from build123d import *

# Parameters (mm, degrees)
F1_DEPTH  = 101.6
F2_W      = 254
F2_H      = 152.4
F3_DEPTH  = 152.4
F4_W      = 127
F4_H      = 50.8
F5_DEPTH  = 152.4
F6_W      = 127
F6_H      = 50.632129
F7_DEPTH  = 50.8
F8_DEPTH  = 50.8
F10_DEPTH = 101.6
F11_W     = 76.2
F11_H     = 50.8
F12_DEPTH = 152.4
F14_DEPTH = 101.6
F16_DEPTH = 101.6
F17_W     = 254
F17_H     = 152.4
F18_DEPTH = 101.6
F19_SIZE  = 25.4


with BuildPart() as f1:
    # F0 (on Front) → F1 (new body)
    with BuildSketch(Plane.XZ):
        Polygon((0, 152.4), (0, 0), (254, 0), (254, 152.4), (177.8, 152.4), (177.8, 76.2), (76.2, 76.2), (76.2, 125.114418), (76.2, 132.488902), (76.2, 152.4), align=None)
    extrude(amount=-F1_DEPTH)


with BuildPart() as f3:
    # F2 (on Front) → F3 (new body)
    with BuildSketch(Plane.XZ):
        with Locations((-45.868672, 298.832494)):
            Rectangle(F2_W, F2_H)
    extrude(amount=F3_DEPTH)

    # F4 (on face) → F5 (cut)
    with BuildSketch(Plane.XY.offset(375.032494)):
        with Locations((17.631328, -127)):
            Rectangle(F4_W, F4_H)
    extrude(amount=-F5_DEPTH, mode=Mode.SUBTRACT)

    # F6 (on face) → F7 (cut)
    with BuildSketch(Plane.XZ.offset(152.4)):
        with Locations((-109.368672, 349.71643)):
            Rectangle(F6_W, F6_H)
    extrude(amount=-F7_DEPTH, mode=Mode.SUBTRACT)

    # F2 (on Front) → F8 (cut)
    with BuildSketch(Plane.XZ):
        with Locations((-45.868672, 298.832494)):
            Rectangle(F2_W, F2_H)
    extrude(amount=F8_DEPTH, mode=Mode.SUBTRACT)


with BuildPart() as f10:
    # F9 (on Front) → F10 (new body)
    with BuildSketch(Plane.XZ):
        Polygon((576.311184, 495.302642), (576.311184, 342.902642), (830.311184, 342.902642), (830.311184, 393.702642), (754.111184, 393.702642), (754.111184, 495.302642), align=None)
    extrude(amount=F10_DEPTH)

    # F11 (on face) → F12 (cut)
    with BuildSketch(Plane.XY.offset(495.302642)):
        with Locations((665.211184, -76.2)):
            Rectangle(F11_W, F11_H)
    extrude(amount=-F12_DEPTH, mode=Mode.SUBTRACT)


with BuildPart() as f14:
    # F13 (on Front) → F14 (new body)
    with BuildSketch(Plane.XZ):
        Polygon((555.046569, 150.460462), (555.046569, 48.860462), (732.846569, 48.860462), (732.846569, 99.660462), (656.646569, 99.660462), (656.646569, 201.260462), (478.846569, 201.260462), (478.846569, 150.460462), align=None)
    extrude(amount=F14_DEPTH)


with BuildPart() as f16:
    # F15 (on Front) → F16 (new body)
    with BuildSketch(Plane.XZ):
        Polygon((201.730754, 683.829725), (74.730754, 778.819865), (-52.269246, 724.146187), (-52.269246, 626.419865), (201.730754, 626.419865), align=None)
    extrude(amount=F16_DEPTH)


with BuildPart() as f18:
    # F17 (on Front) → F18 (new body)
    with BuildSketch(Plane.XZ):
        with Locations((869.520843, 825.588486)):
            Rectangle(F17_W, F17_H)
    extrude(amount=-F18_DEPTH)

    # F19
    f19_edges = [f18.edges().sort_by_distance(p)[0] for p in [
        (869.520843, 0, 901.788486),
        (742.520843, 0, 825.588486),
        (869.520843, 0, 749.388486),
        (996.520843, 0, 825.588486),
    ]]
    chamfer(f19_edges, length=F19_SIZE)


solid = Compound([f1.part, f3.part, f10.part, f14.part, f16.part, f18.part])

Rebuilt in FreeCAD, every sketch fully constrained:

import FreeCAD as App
import Part
import Sketcher
from FreeCAD import Vector
Q = App.Units.Quantity


def edges_at(feature, points):
    """Names of the edges that pass closest to the given points."""
    edges = feature.Shape.Edges
    near = lambda p: min(range(len(edges)), key=lambda i: edges[i].distToShape(Part.Vertex(*p))[0])
    return sorted({f"Edge{near(p) + 1}" for p in points})


def add_polygon(sketch, points):
    """Adds a closed chain of lines whose ends are joined by coincident constraints."""
    first, n = sketch.GeometryCount, len(points)
    for a, b in zip(points, points[1:] + points[:1]):
        sketch.addGeometry(Part.LineSegment(App.Vector(*a, 0), App.Vector(*b, 0)), False)
    for i in range(n):
        sketch.addConstraint(Sketcher.Constraint("Coincident", first + i, 2, first + (i + 1) % n, 1))

doc = App.newDocument("Part")
params = doc.addObject("Spreadsheet::Sheet", "Params")
for row, (alias, value) in enumerate([
    ("sketch1_width", "10 in"),
    ("sketch1_width2", "3 in"),
    ("sketch1_height", "6 in"),
    ("pad1_length", "4 in"),
    ("sketch2_width", "10 in"),
    ("sketch2_height", "6 in"),
    ("pad2_length", "6 in"),
    ("sketch3_width", "5 in"),
    ("sketch3_height", "2 in"),
    ("pocket1_length", "6 in"),
    ("sketch4_width", "5 in"),
    ("pocket2_length", "2 in"),
    ("sketch5_width", "10 in"),
    ("sketch5_height", "6 in"),
    ("pocket3_length", "2 in"),
    ("sketch6_width", "10 in"),
    ("sketch6_width2", "3 in"),
    ("sketch6_height", "6 in"),
    ("sketch6_height2", "2 in"),
    ("pad3_length", "4 in"),
    ("sketch7_width", "3 in"),
    ("sketch7_height", "2 in"),
    ("pocket4_length", "6 in"),
    ("sketch8_width", "7 in"),
    ("sketch8_width2", "3 in"),
    ("sketch8_height", "4 in"),
    ("sketch8_height2", "2 in"),
    ("pad4_length", "4 in"),
    ("sketch9_width", "10 in"),
    ("pad5_length", "4 in"),
    ("sketch10_width", "10 in"),
    ("sketch10_height", "6 in"),
    ("pad6_length", "4 in"),
    ("chamfer_size", "1 in"),
], start=1):
    params.set(f"A{row}", alias)
    params.set(f"B{row}", "=" + value)
    params.setAlias(f"B{row}", alias)

body = doc.addObject("PartDesign::Body", "Body")

sketch1 = body.newObject("Sketcher::SketchObject", "Sketch")
sketch1.AttachmentSupport = (doc.getObject("XZ_Plane"), [""])
sketch1.MapMode = "FlatFace"
add_polygon(sketch1, [(0, 152.4), (0, 0), (254, 0), (254, 152.4), (177.8, 152.4), (177.8, 76.2), (76.2, 76.2), (76.2, 152.4)])
sketch1.addConstraint(Sketcher.Constraint("Vertical", 0))
sketch1.addConstraint(Sketcher.Constraint("Horizontal", 1))
sketch1.addConstraint(Sketcher.Constraint("Vertical", 2))
sketch1.addConstraint(Sketcher.Constraint("Horizontal", 3))
sketch1.addConstraint(Sketcher.Constraint("Vertical", 4))
sketch1.addConstraint(Sketcher.Constraint("Horizontal", 5))
sketch1.addConstraint(Sketcher.Constraint("Vertical", 6))
sketch1.addConstraint(Sketcher.Constraint("Horizontal", 7))
sketch1.addConstraint(Sketcher.Constraint("Coincident", 0, 2, -1, 1))
sketch1.addConstraint(Sketcher.Constraint("Horizontal", 3, 2, 6, 2))
sketch1.addConstraint(Sketcher.Constraint("Equal", 3, 7))
sketch1.addConstraint(Sketcher.Constraint("Equal", 7, 4))
sketch1.addConstraint(Sketcher.Constraint("DistanceX", 1, 1, 1, 2, Q("10 in")))
sketch1.addConstraint(Sketcher.Constraint("DistanceX", 3, 2, 3, 1, Q("3 in")))
sketch1.addConstraint(Sketcher.Constraint("DistanceY", 0, 2, 0, 1, Q("6 in")))
sketch1.setExpression("Constraints[20]", "Params.sketch1_width")
sketch1.setExpression("Constraints[21]", "Params.sketch1_width2")
sketch1.setExpression("Constraints[22]", "Params.sketch1_height")
pad1 = body.newObject("PartDesign::Pad", "Pad")
pad1.Profile = sketch1
pad1.setExpression("Length", "Params.pad1_length")
pad1.Reversed = True
body2 = doc.addObject("PartDesign::Body", "Body001")

sketch2 = body2.newObject("Sketcher::SketchObject", "Sketch001")
sketch2.AttachmentSupport = (doc.getObject("XZ_Plane001"), [""])
sketch2.MapMode = "FlatFace"
add_polygon(sketch2, [(-172.868672, 375.032494), (-172.868672, 222.632494), (81.131328, 222.632494), (81.131328, 375.032494)])
sketch2.addConstraint(Sketcher.Constraint("Vertical", 0))
sketch2.addConstraint(Sketcher.Constraint("Horizontal", 1))
sketch2.addConstraint(Sketcher.Constraint("Vertical", 2))
sketch2.addConstraint(Sketcher.Constraint("Horizontal", 3))
sketch2.addConstraint(Sketcher.Constraint("DistanceX", 1, 1, 1, 2, Q("10 in")))
sketch2.addConstraint(Sketcher.Constraint("DistanceY", 0, 2, 0, 1, Q("6 in")))
sketch2.addConstraint(Sketcher.Constraint("DistanceX", 0, 2, -1, 1, 172.868672))
sketch2.addConstraint(Sketcher.Constraint("DistanceY", -1, 1, 0, 2, 222.632494))
sketch2.setExpression("Constraints[8]", "Params.sketch2_width")
sketch2.setExpression("Constraints[9]", "Params.sketch2_height")
pad2 = body2.newObject("PartDesign::Pad", "Pad001")
pad2.Profile = sketch2
pad2.setExpression("Length", "Params.pad2_length")

sketch3 = body2.newObject("Sketcher::SketchObject", "Sketch002")
sketch3.AttachmentSupport = (doc.getObject("XY_Plane001"), [""])
sketch3.MapMode = "FlatFace"
sketch3.AttachmentOffset = App.Placement(Vector(0, 0, 375.032494), App.Rotation())
add_polygon(sketch3, [(-45.868672, -101.6), (-45.868672, -152.4), (81.131328, -152.4), (81.131328, -101.6)])
sketch3.addConstraint(Sketcher.Constraint("Vertical", 0))
sketch3.addConstraint(Sketcher.Constraint("Horizontal", 1))
sketch3.addConstraint(Sketcher.Constraint("Vertical", 2))
sketch3.addConstraint(Sketcher.Constraint("Horizontal", 3))
sketch3.addConstraint(Sketcher.Constraint("DistanceX", 1, 1, 1, 2, Q("5 in")))
sketch3.addConstraint(Sketcher.Constraint("DistanceY", 0, 2, 0, 1, Q("2 in")))
sketch3.addConstraint(Sketcher.Constraint("DistanceY", 0, 2, -1, 1, Q("6 in")))
sketch3.addConstraint(Sketcher.Constraint("DistanceX", 0, 2, -1, 1, 45.868672))
sketch3.setExpression("Constraints[8]", "Params.sketch3_width")
sketch3.setExpression("Constraints[9]", "Params.sketch3_height")
pocket1 = body2.newObject("PartDesign::Pocket", "Pocket")
pocket1.Profile = sketch3
pocket1.setExpression("Length", "Params.pocket1_length")

sketch4 = body2.newObject("Sketcher::SketchObject", "Sketch003")
sketch4.AttachmentSupport = (doc.getObject("XZ_Plane001"), [""])
sketch4.MapMode = "FlatFace"
sketch4.AttachmentOffset = App.Placement(Vector(0, 0, 6 * 25.4), App.Rotation())
add_polygon(sketch4, [(-172.868672, 375.032494), (-172.868672, 324.400366), (-45.868672, 324.400366), (-45.868672, 375.032494)])
sketch4.addConstraint(Sketcher.Constraint("Vertical", 0))
sketch4.addConstraint(Sketcher.Constraint("Horizontal", 1))
sketch4.addConstraint(Sketcher.Constraint("Vertical", 2))
sketch4.addConstraint(Sketcher.Constraint("Horizontal", 3))
sketch4.addConstraint(Sketcher.Constraint("DistanceX", 1, 1, 1, 2, Q("5 in")))
sketch4.addConstraint(Sketcher.Constraint("DistanceY", 0, 2, 0, 1, 50.632129))
sketch4.addConstraint(Sketcher.Constraint("DistanceX", 0, 2, -1, 1, 172.868672))
sketch4.addConstraint(Sketcher.Constraint("DistanceY", -1, 1, 0, 2, 324.400366))
sketch4.setExpression("Constraints[8]", "Params.sketch4_width")
pocket2 = body2.newObject("PartDesign::Pocket", "Pocket001")
pocket2.Profile = sketch4
pocket2.setExpression("Length", "Params.pocket2_length")

sketch5 = body2.newObject("Sketcher::SketchObject", "Sketch004")
sketch5.AttachmentSupport = (doc.getObject("XZ_Plane001"), [""])
sketch5.MapMode = "FlatFace"
add_polygon(sketch5, [(-172.868672, 375.032494), (-172.868672, 222.632494), (81.131328, 222.632494), (81.131328, 375.032494)])
sketch5.addConstraint(Sketcher.Constraint("Vertical", 0))
sketch5.addConstraint(Sketcher.Constraint("Horizontal", 1))
sketch5.addConstraint(Sketcher.Constraint("Vertical", 2))
sketch5.addConstraint(Sketcher.Constraint("Horizontal", 3))
sketch5.addConstraint(Sketcher.Constraint("DistanceX", 1, 1, 1, 2, Q("10 in")))
sketch5.addConstraint(Sketcher.Constraint("DistanceY", 0, 2, 0, 1, Q("6 in")))
sketch5.addConstraint(Sketcher.Constraint("DistanceX", 0, 2, -1, 1, 172.868672))
sketch5.addConstraint(Sketcher.Constraint("DistanceY", -1, 1, 0, 2, 222.632494))
sketch5.setExpression("Constraints[8]", "Params.sketch5_width")
sketch5.setExpression("Constraints[9]", "Params.sketch5_height")
pocket3 = body2.newObject("PartDesign::Pocket", "Pocket002")
pocket3.Profile = sketch5
pocket3.setExpression("Length", "Params.pocket3_length")
pocket3.Reversed = True
body3 = doc.addObject("PartDesign::Body", "Body002")

sketch6 = body3.newObject("Sketcher::SketchObject", "Sketch005")
sketch6.AttachmentSupport = (doc.getObject("XZ_Plane002"), [""])
sketch6.MapMode = "FlatFace"
add_polygon(sketch6, [(576.311184, 495.302642), (576.311184, 342.902642), (830.311184, 342.902642), (830.311184, 393.702642), (754.111184, 393.702642), (754.111184, 495.302642)])
sketch6.addConstraint(Sketcher.Constraint("Vertical", 0))
sketch6.addConstraint(Sketcher.Constraint("Horizontal", 1))
sketch6.addConstraint(Sketcher.Constraint("Vertical", 2))
sketch6.addConstraint(Sketcher.Constraint("Horizontal", 3))
sketch6.addConstraint(Sketcher.Constraint("Vertical", 4))
sketch6.addConstraint(Sketcher.Constraint("Horizontal", 5))
sketch6.addConstraint(Sketcher.Constraint("DistanceX", 1, 1, 1, 2, Q("10 in")))
sketch6.addConstraint(Sketcher.Constraint("DistanceX", 3, 2, 3, 1, Q("3 in")))
sketch6.addConstraint(Sketcher.Constraint("DistanceY", 0, 2, 0, 1, Q("6 in")))
sketch6.addConstraint(Sketcher.Constraint("DistanceY", 2, 1, 2, 2, Q("2 in")))
sketch6.addConstraint(Sketcher.Constraint("DistanceY", -1, 1, 0, 2, 342.902642))
sketch6.addConstraint(Sketcher.Constraint("DistanceX", -1, 1, 0, 2, 576.311184))
sketch6.setExpression("Constraints[12]", "Params.sketch6_width")
sketch6.setExpression("Constraints[13]", "Params.sketch6_width2")
sketch6.setExpression("Constraints[14]", "Params.sketch6_height")
sketch6.setExpression("Constraints[15]", "Params.sketch6_height2")
pad3 = body3.newObject("PartDesign::Pad", "Pad002")
pad3.Profile = sketch6
pad3.setExpression("Length", "Params.pad3_length")

sketch7 = body3.newObject("Sketcher::SketchObject", "Sketch006")
sketch7.AttachmentSupport = (doc.getObject("XY_Plane002"), [""])
sketch7.MapMode = "FlatFace"
sketch7.AttachmentOffset = App.Placement(Vector(0, 0, 495.302642), App.Rotation())
add_polygon(sketch7, [(627.111184, -50.8), (627.111184, -101.6), (703.311184, -101.6), (703.311184, -50.8)])
sketch7.addConstraint(Sketcher.Constraint("Vertical", 0))
sketch7.addConstraint(Sketcher.Constraint("Horizontal", 1))
sketch7.addConstraint(Sketcher.Constraint("Vertical", 2))
sketch7.addConstraint(Sketcher.Constraint("Horizontal", 3))
sketch7.addConstraint(Sketcher.Constraint("DistanceX", 1, 1, 1, 2, Q("3 in")))
sketch7.addConstraint(Sketcher.Constraint("DistanceY", 0, 2, 0, 1, Q("2 in")))
sketch7.addConstraint(Sketcher.Constraint("DistanceY", 0, 2, -1, 1, Q("4 in")))
sketch7.addConstraint(Sketcher.Constraint("DistanceX", -1, 1, 0, 2, 627.111184))
sketch7.setExpression("Constraints[8]", "Params.sketch7_width")
sketch7.setExpression("Constraints[9]", "Params.sketch7_height")
pocket4 = body3.newObject("PartDesign::Pocket", "Pocket003")
pocket4.Profile = sketch7
pocket4.setExpression("Length", "Params.pocket4_length")
body4 = doc.addObject("PartDesign::Body", "Body003")

sketch8 = body4.newObject("Sketcher::SketchObject", "Sketch007")
sketch8.AttachmentSupport = (doc.getObject("XZ_Plane003"), [""])
sketch8.MapMode = "FlatFace"
add_polygon(sketch8, [(555.046569, 150.460462), (555.046569, 48.860462), (732.846569, 48.860462), (732.846569, 99.660462), (656.646569, 99.660462), (656.646569, 201.260462), (478.846569, 201.260462), (478.846569, 150.460462)])
sketch8.addConstraint(Sketcher.Constraint("Vertical", 0))
sketch8.addConstraint(Sketcher.Constraint("Horizontal", 1))
sketch8.addConstraint(Sketcher.Constraint("Vertical", 2))
sketch8.addConstraint(Sketcher.Constraint("Horizontal", 3))
sketch8.addConstraint(Sketcher.Constraint("Vertical", 4))
sketch8.addConstraint(Sketcher.Constraint("Horizontal", 5))
sketch8.addConstraint(Sketcher.Constraint("Vertical", 6))
sketch8.addConstraint(Sketcher.Constraint("Horizontal", 7))
sketch8.addConstraint(Sketcher.Constraint("Equal", 1, 5))
sketch8.addConstraint(Sketcher.Constraint("Equal", 0, 4))
sketch8.addConstraint(Sketcher.Constraint("DistanceX", 1, 1, 1, 2, Q("7 in")))
sketch8.addConstraint(Sketcher.Constraint("DistanceX", 3, 2, 3, 1, Q("3 in")))
sketch8.addConstraint(Sketcher.Constraint("DistanceY", 0, 2, 0, 1, Q("4 in")))
sketch8.addConstraint(Sketcher.Constraint("DistanceY", 2, 1, 2, 2, Q("2 in")))
sketch8.addConstraint(Sketcher.Constraint("DistanceX", -1, 1, 0, 2, 555.046569))
sketch8.addConstraint(Sketcher.Constraint("DistanceY", -1, 1, 0, 2, 48.860462))
sketch8.setExpression("Constraints[18]", "Params.sketch8_width")
sketch8.setExpression("Constraints[19]", "Params.sketch8_width2")
sketch8.setExpression("Constraints[20]", "Params.sketch8_height")
sketch8.setExpression("Constraints[21]", "Params.sketch8_height2")
pad4 = body4.newObject("PartDesign::Pad", "Pad003")
pad4.Profile = sketch8
pad4.setExpression("Length", "Params.pad4_length")
body5 = doc.addObject("PartDesign::Body", "Body004")

sketch9 = body5.newObject("Sketcher::SketchObject", "Sketch008")
sketch9.AttachmentSupport = (doc.getObject("XZ_Plane004"), [""])
sketch9.MapMode = "FlatFace"
add_polygon(sketch9, [(201.730754, 683.829725), (74.730754, 778.819865), (-52.269246, 724.146187), (-52.269246, 626.419865), (201.730754, 626.419865)])
sketch9.addConstraint(Sketcher.Constraint("Vertical", 2))
sketch9.addConstraint(Sketcher.Constraint("Horizontal", 3))
sketch9.addConstraint(Sketcher.Constraint("Vertical", 4))
sketch9.addConstraint(Sketcher.Constraint("DistanceX", 3, 1, 3, 2, Q("10 in")))
sketch9.addConstraint(Sketcher.Constraint("DistanceX", 1, 2, 0, 2, Q("5 in")))
sketch9.addConstraint(Sketcher.Constraint("DistanceY", 2, 2, 0, 2, Q("6 in")))
sketch9.addConstraint(Sketcher.Constraint("DistanceY", 4, 1, 4, 2, 57.40986))
sketch9.addConstraint(Sketcher.Constraint("Distance", 1, 138.268619))
sketch9.addConstraint(Sketcher.Constraint("DistanceX", -1, 1, 0, 2, 74.730754))
sketch9.addConstraint(Sketcher.Constraint("DistanceY", -1, 1, 0, 2, 778.819865))
sketch9.setExpression("Constraints[8]", "Params.sketch9_width")
pad5 = body5.newObject("PartDesign::Pad", "Pad004")
pad5.Profile = sketch9
pad5.setExpression("Length", "Params.pad5_length")
body6 = doc.addObject("PartDesign::Body", "Body005")

sketch10 = body6.newObject("Sketcher::SketchObject", "Sketch009")
sketch10.AttachmentSupport = (doc.getObject("XZ_Plane005"), [""])
sketch10.MapMode = "FlatFace"
add_polygon(sketch10, [(742.520843, 901.788486), (742.520843, 749.388486), (996.520843, 749.388486), (996.520843, 901.788486)])
sketch10.addConstraint(Sketcher.Constraint("Vertical", 0))
sketch10.addConstraint(Sketcher.Constraint("Horizontal", 1))
sketch10.addConstraint(Sketcher.Constraint("Vertical", 2))
sketch10.addConstraint(Sketcher.Constraint("Horizontal", 3))
sketch10.addConstraint(Sketcher.Constraint("DistanceX", 1, 1, 1, 2, Q("10 in")))
sketch10.addConstraint(Sketcher.Constraint("DistanceY", 0, 2, 0, 1, Q("6 in")))
sketch10.addConstraint(Sketcher.Constraint("DistanceX", -1, 1, 0, 2, 742.520843))
sketch10.addConstraint(Sketcher.Constraint("DistanceY", -1, 1, 0, 2, 749.388486))
sketch10.setExpression("Constraints[8]", "Params.sketch10_width")
sketch10.setExpression("Constraints[9]", "Params.sketch10_height")
pad6 = body6.newObject("PartDesign::Pad", "Pad005")
pad6.Profile = sketch10
pad6.setExpression("Length", "Params.pad6_length")
pad6.Reversed = True
doc.recompute()

chamfer = body6.newObject("PartDesign::Chamfer", "Chamfer")
chamfer.Base = (pad6, edges_at(pad6, [
    (869.521, 0, 901.788),
    (742.521, 0, 825.588),
    (869.521, 0, 749.388),
    (996.521, 0, 825.588),
]))
chamfer.setExpression("Size", "Params.chamfer_size")

doc.recompute()
